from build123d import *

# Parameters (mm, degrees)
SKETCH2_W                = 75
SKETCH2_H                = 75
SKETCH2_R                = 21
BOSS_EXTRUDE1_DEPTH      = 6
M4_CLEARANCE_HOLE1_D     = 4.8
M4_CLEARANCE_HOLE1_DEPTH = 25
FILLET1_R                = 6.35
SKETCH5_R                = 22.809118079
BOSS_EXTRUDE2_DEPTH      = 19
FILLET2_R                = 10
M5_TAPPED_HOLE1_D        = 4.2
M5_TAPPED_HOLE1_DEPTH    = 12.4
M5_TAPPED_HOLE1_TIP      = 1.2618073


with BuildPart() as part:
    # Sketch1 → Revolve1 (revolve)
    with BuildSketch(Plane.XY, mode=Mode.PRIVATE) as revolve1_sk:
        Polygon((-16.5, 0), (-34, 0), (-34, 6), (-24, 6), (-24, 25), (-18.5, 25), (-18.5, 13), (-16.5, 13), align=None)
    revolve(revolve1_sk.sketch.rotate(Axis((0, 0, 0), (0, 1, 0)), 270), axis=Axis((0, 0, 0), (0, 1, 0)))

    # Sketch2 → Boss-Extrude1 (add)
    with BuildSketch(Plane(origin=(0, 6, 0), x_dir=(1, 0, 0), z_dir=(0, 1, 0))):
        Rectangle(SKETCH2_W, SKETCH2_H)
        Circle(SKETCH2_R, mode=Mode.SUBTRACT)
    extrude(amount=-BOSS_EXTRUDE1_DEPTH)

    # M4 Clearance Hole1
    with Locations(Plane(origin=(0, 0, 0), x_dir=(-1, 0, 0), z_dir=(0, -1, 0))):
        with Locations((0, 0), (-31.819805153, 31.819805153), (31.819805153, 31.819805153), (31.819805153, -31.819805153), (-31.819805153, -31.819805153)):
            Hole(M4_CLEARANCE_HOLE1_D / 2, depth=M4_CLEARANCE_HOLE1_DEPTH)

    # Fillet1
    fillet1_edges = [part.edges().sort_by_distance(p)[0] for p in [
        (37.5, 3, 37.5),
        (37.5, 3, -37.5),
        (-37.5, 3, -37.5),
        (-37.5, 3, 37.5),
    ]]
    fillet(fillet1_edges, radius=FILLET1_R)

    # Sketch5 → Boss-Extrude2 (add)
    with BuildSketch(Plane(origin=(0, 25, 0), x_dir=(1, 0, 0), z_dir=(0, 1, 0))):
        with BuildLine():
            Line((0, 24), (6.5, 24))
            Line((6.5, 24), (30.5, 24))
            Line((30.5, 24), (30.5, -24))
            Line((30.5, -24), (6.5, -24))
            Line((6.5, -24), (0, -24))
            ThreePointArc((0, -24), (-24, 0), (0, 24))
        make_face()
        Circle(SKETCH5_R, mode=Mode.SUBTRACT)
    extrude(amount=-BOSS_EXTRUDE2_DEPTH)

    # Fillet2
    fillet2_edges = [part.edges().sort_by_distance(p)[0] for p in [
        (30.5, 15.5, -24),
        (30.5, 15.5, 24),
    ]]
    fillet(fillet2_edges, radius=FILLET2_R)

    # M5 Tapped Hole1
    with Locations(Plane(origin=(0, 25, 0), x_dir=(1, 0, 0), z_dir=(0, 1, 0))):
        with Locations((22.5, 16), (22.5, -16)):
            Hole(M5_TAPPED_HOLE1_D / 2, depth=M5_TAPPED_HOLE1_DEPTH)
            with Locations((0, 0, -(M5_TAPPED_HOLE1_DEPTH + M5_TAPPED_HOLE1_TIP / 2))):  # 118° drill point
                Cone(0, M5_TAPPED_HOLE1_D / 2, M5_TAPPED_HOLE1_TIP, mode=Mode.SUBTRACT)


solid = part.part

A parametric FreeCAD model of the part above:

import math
import FreeCAD as App
import Part
import Sketcher
from FreeCAD import Vector
Q = App.Units.Quantity


def edges_at(feature, points):
    """Names of the edges that pass closest to the given points."""
    edges = feature.Shape.Edges
    near = lambda p: min(range(len(edges)), key=lambda i: edges[i].distToShape(Part.Vertex(*p))[0])
    return sorted({f"Edge{near(p) + 1}" for p in points})


def add_polygon(sketch, points):
    """Adds a closed chain of lines whose ends are joined by coincident constraints."""
    first, n = sketch.GeometryCount, len(points)
    for a, b in zip(points, points[1:] + points[:1]):
        sketch.addGeometry(Part.LineSegment(App.Vector(*a, 0), App.Vector(*b, 0)), False)
    for i in range(n):
        sketch.addConstraint(Sketcher.Constraint("Coincident", first + i, 2, first + (i + 1) % n, 1))

doc = App.newDocument("Part")
body = doc.addObject("PartDesign::Body", "Body")

# Sketch on XY plane
sketch1 = body.newObject("Sketcher::SketchObject", "Sketch")
sketch1.AttachmentSupport = (doc.getObject("XY_Plane"), [""])
sketch1.MapMode = "FlatFace"
add_polygon(sketch1, [(-34, 0), (-16.5, 0), (-16.5, 13), (-18.5, 13), (-18.5, 25), (-24, 25), (-24, 6), (-34, 6)])  # lines 0-7
sketch1.addConstraint([
    Sketcher.Constraint("Horizontal", 0),
    Sketcher.Constraint("Vertical", 1),
    Sketcher.Constraint("Horizontal", 2),
    Sketcher.Constraint("Vertical", 3),
    Sketcher.Constraint("Horizontal", 4),
    Sketcher.Constraint("Vertical", 5),
    Sketcher.Constraint("Horizontal", 6),
    Sketcher.Constraint("Vertical", 7),
    Sketcher.Constraint("PointOnObject", 0, 2, -1),
    Sketcher.Constraint("DistanceX", 2, 2, 2, 1, Q("2 mm")),
    Sketcher.Constraint("DistanceX", 6, 2, 6, 1, Q("10 mm")),
    Sketcher.Constraint("DistanceY", 1, 1, 1, 2, Q("13 mm")),
    Sketcher.Constraint("DistanceY", 3, 1, 3, 2, Q("12 mm")),
    Sketcher.Constraint("DistanceY", 5, 2, 5, 1, Q("19 mm")),
    Sketcher.Constraint("DistanceX", 0, 1, 0, 2, Q("17.5 mm")),
    Sketcher.Constraint("DistanceX", 4, 2, -1, 1, Q("24 mm")),
])
revolution = body.newObject("PartDesign::Revolution", "Revolution")
revolution.Profile = sketch1
revolution.ReferenceAxis = (sketch1, ["V_Axis"])
revolution.Angle = 360

# Sketch on XZ plane
sketch2 = body.newObject("Sketcher::SketchObject", "Sketch001")
sketch2.AttachmentSupport = (doc.getObject("XZ_Plane"), [""])
sketch2.MapMode = "FlatFace"
sketch2.AttachmentOffset = App.Placement(Vector(0, 0, -6), App.Rotation())
add_polygon(sketch2, [(-37.5, -37.5), (-37.5, 37.5), (37.5, 37.5), (37.5, -37.5)])  # lines 0-3
sketch2.addGeometry(Part.Circle(Vector(0, 0, 0), Vector(0, 0, 1), 21), False)  # 4
sketch2.addConstraint([
    Sketcher.Constraint("Vertical", 0),
    Sketcher.Constraint("Horizontal", 1),
    Sketcher.Constraint("Vertical", 2),
    Sketcher.Constraint("Horizontal", 3),
    Sketcher.Constraint("Coincident", 4, 3, -1, 1),
    Sketcher.Constraint("Symmetric", 0, 2, 2, 2, -1, 1),
    Sketcher.Constraint("Equal", 3, 0),
    Sketcher.Constraint("Diameter", 4, Q("42 mm")),
    Sketcher.Constraint("DistanceX", 1, 1, 1, 2, Q("75 mm")),
])
pad1 = body.newObject("PartDesign::Pad", "Pad")
pad1.Profile = sketch2
pad1.Length = 6

# Sketch on XZ plane
sketch3 = body.newObject("Sketcher::SketchObject", "Sketch002")
sketch3.AttachmentSupport = (doc.getObject("XZ_Plane"), [""])
sketch3.MapMode = "FlatFace"
sketch3.addGeometry([
    Part.Circle(Vector(0, 0, 0), Vector(0, 0, 1), 2.4),  # 0
    Part.Circle(Vector(31.819805, -31.819805, 0), Vector(0, 0, 1), 2.4),  # 1
    Part.Circle(Vector(-31.819805, -31.819805, 0), Vector(0, 0, 1), 2.4),  # 2
    Part.Circle(Vector(-31.819805, 31.819805, 0), Vector(0, 0, 1), 2.4),  # 3
    Part.Circle(Vector(31.819805, 31.819805, 0), Vector(0, 0, 1), 2.4),  # 4
], False)
sketch3.addConstraint([
    Sketcher.Constraint("Coincident", 0, 3, -1, 1),
    Sketcher.Constraint("Equal", 0, 1),
    Sketcher.Constraint("Equal", 1, 2),
    Sketcher.Constraint("Equal", 2, 3),
    Sketcher.Constraint("Equal", 3, 4),
    Sketcher.Constraint("Symmetric", 1, 3, 3, 3, -1, 1),
    Sketcher.Constraint("Symmetric", 2, 3, 4, 3, -1, 1),
    Sketcher.Constraint("Symmetric", 1, 3, 2, 3, -2),
    Sketcher.Constraint("Diameter", 0, Q("4.8 mm")),
    Sketcher.Constraint("DistanceX", 2, 3, 1, 3, Q("63.63961 mm")),
    Sketcher.Constraint("DistanceY", 2, 3, 3, 3, Q("63.63961 mm")),
])
doc.recompute()
hole = body.newObject("PartDesign::Hole", "Hole")
hole.Profile = sketch3
hole.ThreadType = "None"
hole.Diameter = 4.8
hole.DepthType = "Dimension"
hole.Depth = 25
hole.DrillPoint = "Flat"
doc.recompute()

fillet = body.newObject("PartDesign::Fillet", "Fillet")
fillet.Base = (hole, edges_at(hole, [
    (37.5, 3, 37.5),
    (37.5, 3, -37.5),
    (-37.5, 3, -37.5),
    (-37.5, 3, 37.5),
]))
fillet.Radius = 6.35

# Sketch on XZ plane
sketch4 = body.newObject("Sketcher::SketchObject", "Sketch003")
sketch4.AttachmentSupport = (doc.getObject("XZ_Plane"), [""])
sketch4.MapMode = "FlatFace"
sketch4.AttachmentOffset = App.Placement(Vector(0, 0, -25), App.Rotation())
sketch4.addGeometry([
    Part.LineSegment(Vector(30.5, -24, 0), Vector(0, -24, 0)),  # 0
    Part.ArcOfCircle(Part.Circle(Vector(0, 0, 0), Vector(0, 0, 1), 24), math.radians(90), math.radians(270)),  # 1
    Part.LineSegment(Vector(0, 24, 0), Vector(30.5, 24, 0)),  # 2
    Part.LineSegment(Vector(30.5, 24, 0), Vector(30.5, -24, 0)),  # 3
    Part.Circle(Vector(0, 0, 0), Vector(0, 0, 1), 22.809118),  # 4
], False)
sketch4.addConstraint([
    Sketcher.Constraint("Tangent", 0, 2, 1, 2),
    Sketcher.Constraint("Tangent", 1, 1, 2, 1),
    Sketcher.Constraint("Coincident", 2, 2, 3, 1),
    Sketcher.Constraint("Coincident", 3, 2, 0, 1),
    Sketcher.Constraint("Horizontal", 0),
    Sketcher.Constraint("Horizontal", 2),
    Sketcher.Constraint("Vertical", 3),
    Sketcher.Constraint("Coincident", 1, 3, -1, 1),
    Sketcher.Constraint("Coincident", 4, 3, -1, 1),
    Sketcher.Constraint("Radius", 1, Q("24 mm")),
    Sketcher.Constraint("DistanceX", 0, 2, 0, 1, Q("30.5 mm")),
    Sketcher.Constraint("Diameter", 4, Q("45.618236 mm")),
])
pad2 = body.newObject("PartDesign::Pad", "Pad001")
pad2.Profile = sketch4
pad2.Length = 19
doc.recompute()

fillet2 = body.newObject("PartDesign::Fillet", "Fillet001")
fillet2.Base = (pad2, edges_at(pad2, [(30.5, 15.5, -24), (30.5, 15.5, 24)]))
fillet2.Radius = 10

# Sketch on XZ plane
sketch5 = body.newObject("Sketcher::SketchObject", "Sketch004")
sketch5.AttachmentSupport = (doc.getObject("XZ_Plane"), [""])
sketch5.MapMode = "FlatFace"
sketch5.AttachmentOffset = App.Placement(Vector(0, 0, -25), App.Rotation())
sketch5.addGeometry([
    Part.Circle(Vector(22.5, -16, 0), Vector(0, 0, 1), 2.1),
    Part.Circle(Vector(22.5, 16, 0), Vector(0, 0, 1), 2.1),
], False)
sketch5.addConstraint([
    Sketcher.Constraint("Equal", 0, 1),
    Sketcher.Constraint("Symmetric", 0, 3, 1, 3, -1),
    Sketcher.Constraint("Diameter", 0, Q("4.2 mm")),
    Sketcher.Constraint("DistanceY", 0, 3, -1, 1, Q("16 mm")),
    Sketcher.Constraint("DistanceX", -1, 1, 0, 3, Q("22.5 mm")),
])
doc.recompute()
hole2 = body.newObject("PartDesign::Hole", "Hole001")
hole2.Profile = sketch5
hole2.ThreadType = "None"
hole2.Diameter = 4.2
hole2.DepthType = "Dimension"
hole2.Depth = 12.4
hole2.DrillPoint = "Angled"
hole2.DrillPointAngle = 118
hole2.Reversed = True

doc.recompute()
